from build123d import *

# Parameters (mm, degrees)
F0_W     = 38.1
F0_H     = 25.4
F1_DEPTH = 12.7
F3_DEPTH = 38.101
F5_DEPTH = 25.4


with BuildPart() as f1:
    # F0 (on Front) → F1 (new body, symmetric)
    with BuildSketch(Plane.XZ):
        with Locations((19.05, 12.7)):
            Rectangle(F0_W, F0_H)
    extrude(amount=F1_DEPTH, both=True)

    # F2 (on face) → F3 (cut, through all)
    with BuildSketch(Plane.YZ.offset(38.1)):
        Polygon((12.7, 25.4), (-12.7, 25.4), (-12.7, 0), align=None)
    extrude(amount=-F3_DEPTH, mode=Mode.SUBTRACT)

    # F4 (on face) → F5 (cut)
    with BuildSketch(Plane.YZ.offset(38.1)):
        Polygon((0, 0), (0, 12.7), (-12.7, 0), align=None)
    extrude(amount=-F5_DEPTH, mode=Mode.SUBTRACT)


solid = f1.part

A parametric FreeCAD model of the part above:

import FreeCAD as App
import Part
import Sketcher
from FreeCAD import Vector
Q = App.Units.Quantity

doc = App.newDocument("Part")
params = doc.addObject("Spreadsheet::Sheet", "Params")
for row, (alias, value) in enumerate([
    ("sketch1_height", "1 in"),
    ("sketch1_width", "1.5 in"),
    ("pad1_length", "1 in"),
    ("sketch2_width", "1 in"),
    ("sketch3_width", "0.5 in"),
    ("pocket2_length", "1 in"),
], start=1):
    params.set(f"A{row}", alias)
    params.set(f"B{row}", "=" + value)
    params.setAlias(f"B{row}", alias)

body = doc.addObject("PartDesign::Body", "Body")

sketch1 = body.newObject("Sketcher::SketchObject", "Sketch")
sketch1.AttachmentSupport = (doc.getObject("XZ_Plane"), [""])
sketch1.MapMode = "FlatFace"
sketch1.addGeometry([
    Part.LineSegment(Vector(0, 25.4, 0), Vector(0, 0, 0)),
    Part.LineSegment(Vector(0, 0, 0), Vector(38.1, 0, 0)),
    Part.LineSegment(Vector(38.1, 0, 0), Vector(38.1, 25.4, 0)),
    Part.LineSegment(Vector(38.1, 25.4, 0), Vector(0, 25.4, 0)),
], False)
sketch1.addConstraint([
    Sketcher.Constraint("Coincident", 0, 2, 1, 1),
    Sketcher.Constraint("Coincident", 1, 2, 2, 1),
    Sketcher.Constraint("Coincident", 2, 2, 3, 1),
    Sketcher.Constraint("Coincident", 3, 2, 0, 1),
    Sketcher.Constraint("Vertical", 0),
    Sketcher.Constraint("Horizontal", 1),
    Sketcher.Constraint("Vertical", 2),
    Sketcher.Constraint("Horizontal", 3),
    Sketcher.Constraint("Coincident", 0, 2, -1, 1),
    Sketcher.Constraint("DistanceY", 0, 2, 0, 1, Q("1 in")),
    Sketcher.Constraint("DistanceX", 1, 1, 1, 2, Q("1.5 in")),
])
sketch1.setExpression("Constraints[9]", "Params.sketch1_height")
sketch1.setExpression("Constraints[10]", "Params.sketch1_width")
pad1 = body.newObject("PartDesign::Pad", "Pad")
pad1.Profile = sketch1
pad1.setExpression("Length", "Params.pad1_length")
pad1.Midplane = True

sketch2 = body.newObject("Sketcher::SketchObject", "Sketch001")
sketch2.AttachmentSupport = (doc.getObject("YZ_Plane"), [""])
sketch2.MapMode = "FlatFace"
sketch2.AttachmentOffset = App.Placement(Vector(0, 0, 1.5 * 25.4), App.Rotation())
sketch2.addGeometry([
    Part.LineSegment(Vector(12.7, 25.4, 0), Vector(-12.7, 25.4, 0)),
    Part.LineSegment(Vector(-12.7, 25.4, 0), Vector(-12.7, 0, 0)),
    Part.LineSegment(Vector(-12.7, 0, 0), Vector(12.7, 25.4, 0)),
], False)
sketch2.addConstraint([
    Sketcher.Constraint("Coincident", 0, 2, 1, 1),
    Sketcher.Constraint("Coincident", 1, 2, 2, 1),
    Sketcher.Constraint("Coincident", 2, 2, 0, 1),
    Sketcher.Constraint("Horizontal", 0),
    Sketcher.Constraint("Vertical", 1),
    Sketcher.Constraint("PointOnObject", 1, 2, -1),
    Sketcher.Constraint("Equal", 0, 1),
    Sketcher.Constraint("DistanceX", 0, 2, 0, 1, Q("1 in")),
    Sketcher.Constraint("DistanceX", 0, 2, -1, 1, Q("0.5 in")),
])
sketch2.setExpression("Constraints[7]", "Params.sketch2_width")
pocket1 = body.newObject("PartDesign::Pocket", "Pocket")
pocket1.Profile = sketch2
pocket1.Type = "ThroughAll"

sketch3 = body.newObject("Sketcher::SketchObject", "Sketch002")
sketch3.AttachmentSupport = (doc.getObject("YZ_Plane"), [""])
sketch3.MapMode = "FlatFace"
sketch3.AttachmentOffset = App.Placement(Vector(0, 0, 1.5 * 25.4), App.Rotation())
sketch3.addGeometry([
    Part.LineSegment(Vector(0, 0, 0), Vector(0, 12.7, 0)),
    Part.LineSegment(Vector(0, 12.7, 0), Vector(-12.7, 0, 0)),
    Part.LineSegment(Vector(-12.7, 0, 0), Vector(0, 0, 0)),
], False)
sketch3.addConstraint([
    Sketcher.Constraint("Coincident", 0, 2, 1, 1),
    Sketcher.Constraint("Coincident", 1, 2, 2, 1),
    Sketcher.Constraint("Coincident", 2, 2, 0, 1),
    Sketcher.Constraint("Vertical", 0),
    Sketcher.Constraint("Horizontal", 2),
    Sketcher.Constraint("Coincident", 2, 2, -1, 1),
    Sketcher.Constraint("Equal", 2, 0),
    Sketcher.Constraint("DistanceX", 2, 1, 2, 2, Q("0.5 in")),
])
sketch3.setExpression("Constraints[7]", "Params.sketch3_width")
pocket2 = body.newObject("PartDesign::Pocket", "Pocket001")
pocket2.Profile = sketch3
pocket2.setExpression("Length", "Params.pocket2_length")

doc.recompute()
